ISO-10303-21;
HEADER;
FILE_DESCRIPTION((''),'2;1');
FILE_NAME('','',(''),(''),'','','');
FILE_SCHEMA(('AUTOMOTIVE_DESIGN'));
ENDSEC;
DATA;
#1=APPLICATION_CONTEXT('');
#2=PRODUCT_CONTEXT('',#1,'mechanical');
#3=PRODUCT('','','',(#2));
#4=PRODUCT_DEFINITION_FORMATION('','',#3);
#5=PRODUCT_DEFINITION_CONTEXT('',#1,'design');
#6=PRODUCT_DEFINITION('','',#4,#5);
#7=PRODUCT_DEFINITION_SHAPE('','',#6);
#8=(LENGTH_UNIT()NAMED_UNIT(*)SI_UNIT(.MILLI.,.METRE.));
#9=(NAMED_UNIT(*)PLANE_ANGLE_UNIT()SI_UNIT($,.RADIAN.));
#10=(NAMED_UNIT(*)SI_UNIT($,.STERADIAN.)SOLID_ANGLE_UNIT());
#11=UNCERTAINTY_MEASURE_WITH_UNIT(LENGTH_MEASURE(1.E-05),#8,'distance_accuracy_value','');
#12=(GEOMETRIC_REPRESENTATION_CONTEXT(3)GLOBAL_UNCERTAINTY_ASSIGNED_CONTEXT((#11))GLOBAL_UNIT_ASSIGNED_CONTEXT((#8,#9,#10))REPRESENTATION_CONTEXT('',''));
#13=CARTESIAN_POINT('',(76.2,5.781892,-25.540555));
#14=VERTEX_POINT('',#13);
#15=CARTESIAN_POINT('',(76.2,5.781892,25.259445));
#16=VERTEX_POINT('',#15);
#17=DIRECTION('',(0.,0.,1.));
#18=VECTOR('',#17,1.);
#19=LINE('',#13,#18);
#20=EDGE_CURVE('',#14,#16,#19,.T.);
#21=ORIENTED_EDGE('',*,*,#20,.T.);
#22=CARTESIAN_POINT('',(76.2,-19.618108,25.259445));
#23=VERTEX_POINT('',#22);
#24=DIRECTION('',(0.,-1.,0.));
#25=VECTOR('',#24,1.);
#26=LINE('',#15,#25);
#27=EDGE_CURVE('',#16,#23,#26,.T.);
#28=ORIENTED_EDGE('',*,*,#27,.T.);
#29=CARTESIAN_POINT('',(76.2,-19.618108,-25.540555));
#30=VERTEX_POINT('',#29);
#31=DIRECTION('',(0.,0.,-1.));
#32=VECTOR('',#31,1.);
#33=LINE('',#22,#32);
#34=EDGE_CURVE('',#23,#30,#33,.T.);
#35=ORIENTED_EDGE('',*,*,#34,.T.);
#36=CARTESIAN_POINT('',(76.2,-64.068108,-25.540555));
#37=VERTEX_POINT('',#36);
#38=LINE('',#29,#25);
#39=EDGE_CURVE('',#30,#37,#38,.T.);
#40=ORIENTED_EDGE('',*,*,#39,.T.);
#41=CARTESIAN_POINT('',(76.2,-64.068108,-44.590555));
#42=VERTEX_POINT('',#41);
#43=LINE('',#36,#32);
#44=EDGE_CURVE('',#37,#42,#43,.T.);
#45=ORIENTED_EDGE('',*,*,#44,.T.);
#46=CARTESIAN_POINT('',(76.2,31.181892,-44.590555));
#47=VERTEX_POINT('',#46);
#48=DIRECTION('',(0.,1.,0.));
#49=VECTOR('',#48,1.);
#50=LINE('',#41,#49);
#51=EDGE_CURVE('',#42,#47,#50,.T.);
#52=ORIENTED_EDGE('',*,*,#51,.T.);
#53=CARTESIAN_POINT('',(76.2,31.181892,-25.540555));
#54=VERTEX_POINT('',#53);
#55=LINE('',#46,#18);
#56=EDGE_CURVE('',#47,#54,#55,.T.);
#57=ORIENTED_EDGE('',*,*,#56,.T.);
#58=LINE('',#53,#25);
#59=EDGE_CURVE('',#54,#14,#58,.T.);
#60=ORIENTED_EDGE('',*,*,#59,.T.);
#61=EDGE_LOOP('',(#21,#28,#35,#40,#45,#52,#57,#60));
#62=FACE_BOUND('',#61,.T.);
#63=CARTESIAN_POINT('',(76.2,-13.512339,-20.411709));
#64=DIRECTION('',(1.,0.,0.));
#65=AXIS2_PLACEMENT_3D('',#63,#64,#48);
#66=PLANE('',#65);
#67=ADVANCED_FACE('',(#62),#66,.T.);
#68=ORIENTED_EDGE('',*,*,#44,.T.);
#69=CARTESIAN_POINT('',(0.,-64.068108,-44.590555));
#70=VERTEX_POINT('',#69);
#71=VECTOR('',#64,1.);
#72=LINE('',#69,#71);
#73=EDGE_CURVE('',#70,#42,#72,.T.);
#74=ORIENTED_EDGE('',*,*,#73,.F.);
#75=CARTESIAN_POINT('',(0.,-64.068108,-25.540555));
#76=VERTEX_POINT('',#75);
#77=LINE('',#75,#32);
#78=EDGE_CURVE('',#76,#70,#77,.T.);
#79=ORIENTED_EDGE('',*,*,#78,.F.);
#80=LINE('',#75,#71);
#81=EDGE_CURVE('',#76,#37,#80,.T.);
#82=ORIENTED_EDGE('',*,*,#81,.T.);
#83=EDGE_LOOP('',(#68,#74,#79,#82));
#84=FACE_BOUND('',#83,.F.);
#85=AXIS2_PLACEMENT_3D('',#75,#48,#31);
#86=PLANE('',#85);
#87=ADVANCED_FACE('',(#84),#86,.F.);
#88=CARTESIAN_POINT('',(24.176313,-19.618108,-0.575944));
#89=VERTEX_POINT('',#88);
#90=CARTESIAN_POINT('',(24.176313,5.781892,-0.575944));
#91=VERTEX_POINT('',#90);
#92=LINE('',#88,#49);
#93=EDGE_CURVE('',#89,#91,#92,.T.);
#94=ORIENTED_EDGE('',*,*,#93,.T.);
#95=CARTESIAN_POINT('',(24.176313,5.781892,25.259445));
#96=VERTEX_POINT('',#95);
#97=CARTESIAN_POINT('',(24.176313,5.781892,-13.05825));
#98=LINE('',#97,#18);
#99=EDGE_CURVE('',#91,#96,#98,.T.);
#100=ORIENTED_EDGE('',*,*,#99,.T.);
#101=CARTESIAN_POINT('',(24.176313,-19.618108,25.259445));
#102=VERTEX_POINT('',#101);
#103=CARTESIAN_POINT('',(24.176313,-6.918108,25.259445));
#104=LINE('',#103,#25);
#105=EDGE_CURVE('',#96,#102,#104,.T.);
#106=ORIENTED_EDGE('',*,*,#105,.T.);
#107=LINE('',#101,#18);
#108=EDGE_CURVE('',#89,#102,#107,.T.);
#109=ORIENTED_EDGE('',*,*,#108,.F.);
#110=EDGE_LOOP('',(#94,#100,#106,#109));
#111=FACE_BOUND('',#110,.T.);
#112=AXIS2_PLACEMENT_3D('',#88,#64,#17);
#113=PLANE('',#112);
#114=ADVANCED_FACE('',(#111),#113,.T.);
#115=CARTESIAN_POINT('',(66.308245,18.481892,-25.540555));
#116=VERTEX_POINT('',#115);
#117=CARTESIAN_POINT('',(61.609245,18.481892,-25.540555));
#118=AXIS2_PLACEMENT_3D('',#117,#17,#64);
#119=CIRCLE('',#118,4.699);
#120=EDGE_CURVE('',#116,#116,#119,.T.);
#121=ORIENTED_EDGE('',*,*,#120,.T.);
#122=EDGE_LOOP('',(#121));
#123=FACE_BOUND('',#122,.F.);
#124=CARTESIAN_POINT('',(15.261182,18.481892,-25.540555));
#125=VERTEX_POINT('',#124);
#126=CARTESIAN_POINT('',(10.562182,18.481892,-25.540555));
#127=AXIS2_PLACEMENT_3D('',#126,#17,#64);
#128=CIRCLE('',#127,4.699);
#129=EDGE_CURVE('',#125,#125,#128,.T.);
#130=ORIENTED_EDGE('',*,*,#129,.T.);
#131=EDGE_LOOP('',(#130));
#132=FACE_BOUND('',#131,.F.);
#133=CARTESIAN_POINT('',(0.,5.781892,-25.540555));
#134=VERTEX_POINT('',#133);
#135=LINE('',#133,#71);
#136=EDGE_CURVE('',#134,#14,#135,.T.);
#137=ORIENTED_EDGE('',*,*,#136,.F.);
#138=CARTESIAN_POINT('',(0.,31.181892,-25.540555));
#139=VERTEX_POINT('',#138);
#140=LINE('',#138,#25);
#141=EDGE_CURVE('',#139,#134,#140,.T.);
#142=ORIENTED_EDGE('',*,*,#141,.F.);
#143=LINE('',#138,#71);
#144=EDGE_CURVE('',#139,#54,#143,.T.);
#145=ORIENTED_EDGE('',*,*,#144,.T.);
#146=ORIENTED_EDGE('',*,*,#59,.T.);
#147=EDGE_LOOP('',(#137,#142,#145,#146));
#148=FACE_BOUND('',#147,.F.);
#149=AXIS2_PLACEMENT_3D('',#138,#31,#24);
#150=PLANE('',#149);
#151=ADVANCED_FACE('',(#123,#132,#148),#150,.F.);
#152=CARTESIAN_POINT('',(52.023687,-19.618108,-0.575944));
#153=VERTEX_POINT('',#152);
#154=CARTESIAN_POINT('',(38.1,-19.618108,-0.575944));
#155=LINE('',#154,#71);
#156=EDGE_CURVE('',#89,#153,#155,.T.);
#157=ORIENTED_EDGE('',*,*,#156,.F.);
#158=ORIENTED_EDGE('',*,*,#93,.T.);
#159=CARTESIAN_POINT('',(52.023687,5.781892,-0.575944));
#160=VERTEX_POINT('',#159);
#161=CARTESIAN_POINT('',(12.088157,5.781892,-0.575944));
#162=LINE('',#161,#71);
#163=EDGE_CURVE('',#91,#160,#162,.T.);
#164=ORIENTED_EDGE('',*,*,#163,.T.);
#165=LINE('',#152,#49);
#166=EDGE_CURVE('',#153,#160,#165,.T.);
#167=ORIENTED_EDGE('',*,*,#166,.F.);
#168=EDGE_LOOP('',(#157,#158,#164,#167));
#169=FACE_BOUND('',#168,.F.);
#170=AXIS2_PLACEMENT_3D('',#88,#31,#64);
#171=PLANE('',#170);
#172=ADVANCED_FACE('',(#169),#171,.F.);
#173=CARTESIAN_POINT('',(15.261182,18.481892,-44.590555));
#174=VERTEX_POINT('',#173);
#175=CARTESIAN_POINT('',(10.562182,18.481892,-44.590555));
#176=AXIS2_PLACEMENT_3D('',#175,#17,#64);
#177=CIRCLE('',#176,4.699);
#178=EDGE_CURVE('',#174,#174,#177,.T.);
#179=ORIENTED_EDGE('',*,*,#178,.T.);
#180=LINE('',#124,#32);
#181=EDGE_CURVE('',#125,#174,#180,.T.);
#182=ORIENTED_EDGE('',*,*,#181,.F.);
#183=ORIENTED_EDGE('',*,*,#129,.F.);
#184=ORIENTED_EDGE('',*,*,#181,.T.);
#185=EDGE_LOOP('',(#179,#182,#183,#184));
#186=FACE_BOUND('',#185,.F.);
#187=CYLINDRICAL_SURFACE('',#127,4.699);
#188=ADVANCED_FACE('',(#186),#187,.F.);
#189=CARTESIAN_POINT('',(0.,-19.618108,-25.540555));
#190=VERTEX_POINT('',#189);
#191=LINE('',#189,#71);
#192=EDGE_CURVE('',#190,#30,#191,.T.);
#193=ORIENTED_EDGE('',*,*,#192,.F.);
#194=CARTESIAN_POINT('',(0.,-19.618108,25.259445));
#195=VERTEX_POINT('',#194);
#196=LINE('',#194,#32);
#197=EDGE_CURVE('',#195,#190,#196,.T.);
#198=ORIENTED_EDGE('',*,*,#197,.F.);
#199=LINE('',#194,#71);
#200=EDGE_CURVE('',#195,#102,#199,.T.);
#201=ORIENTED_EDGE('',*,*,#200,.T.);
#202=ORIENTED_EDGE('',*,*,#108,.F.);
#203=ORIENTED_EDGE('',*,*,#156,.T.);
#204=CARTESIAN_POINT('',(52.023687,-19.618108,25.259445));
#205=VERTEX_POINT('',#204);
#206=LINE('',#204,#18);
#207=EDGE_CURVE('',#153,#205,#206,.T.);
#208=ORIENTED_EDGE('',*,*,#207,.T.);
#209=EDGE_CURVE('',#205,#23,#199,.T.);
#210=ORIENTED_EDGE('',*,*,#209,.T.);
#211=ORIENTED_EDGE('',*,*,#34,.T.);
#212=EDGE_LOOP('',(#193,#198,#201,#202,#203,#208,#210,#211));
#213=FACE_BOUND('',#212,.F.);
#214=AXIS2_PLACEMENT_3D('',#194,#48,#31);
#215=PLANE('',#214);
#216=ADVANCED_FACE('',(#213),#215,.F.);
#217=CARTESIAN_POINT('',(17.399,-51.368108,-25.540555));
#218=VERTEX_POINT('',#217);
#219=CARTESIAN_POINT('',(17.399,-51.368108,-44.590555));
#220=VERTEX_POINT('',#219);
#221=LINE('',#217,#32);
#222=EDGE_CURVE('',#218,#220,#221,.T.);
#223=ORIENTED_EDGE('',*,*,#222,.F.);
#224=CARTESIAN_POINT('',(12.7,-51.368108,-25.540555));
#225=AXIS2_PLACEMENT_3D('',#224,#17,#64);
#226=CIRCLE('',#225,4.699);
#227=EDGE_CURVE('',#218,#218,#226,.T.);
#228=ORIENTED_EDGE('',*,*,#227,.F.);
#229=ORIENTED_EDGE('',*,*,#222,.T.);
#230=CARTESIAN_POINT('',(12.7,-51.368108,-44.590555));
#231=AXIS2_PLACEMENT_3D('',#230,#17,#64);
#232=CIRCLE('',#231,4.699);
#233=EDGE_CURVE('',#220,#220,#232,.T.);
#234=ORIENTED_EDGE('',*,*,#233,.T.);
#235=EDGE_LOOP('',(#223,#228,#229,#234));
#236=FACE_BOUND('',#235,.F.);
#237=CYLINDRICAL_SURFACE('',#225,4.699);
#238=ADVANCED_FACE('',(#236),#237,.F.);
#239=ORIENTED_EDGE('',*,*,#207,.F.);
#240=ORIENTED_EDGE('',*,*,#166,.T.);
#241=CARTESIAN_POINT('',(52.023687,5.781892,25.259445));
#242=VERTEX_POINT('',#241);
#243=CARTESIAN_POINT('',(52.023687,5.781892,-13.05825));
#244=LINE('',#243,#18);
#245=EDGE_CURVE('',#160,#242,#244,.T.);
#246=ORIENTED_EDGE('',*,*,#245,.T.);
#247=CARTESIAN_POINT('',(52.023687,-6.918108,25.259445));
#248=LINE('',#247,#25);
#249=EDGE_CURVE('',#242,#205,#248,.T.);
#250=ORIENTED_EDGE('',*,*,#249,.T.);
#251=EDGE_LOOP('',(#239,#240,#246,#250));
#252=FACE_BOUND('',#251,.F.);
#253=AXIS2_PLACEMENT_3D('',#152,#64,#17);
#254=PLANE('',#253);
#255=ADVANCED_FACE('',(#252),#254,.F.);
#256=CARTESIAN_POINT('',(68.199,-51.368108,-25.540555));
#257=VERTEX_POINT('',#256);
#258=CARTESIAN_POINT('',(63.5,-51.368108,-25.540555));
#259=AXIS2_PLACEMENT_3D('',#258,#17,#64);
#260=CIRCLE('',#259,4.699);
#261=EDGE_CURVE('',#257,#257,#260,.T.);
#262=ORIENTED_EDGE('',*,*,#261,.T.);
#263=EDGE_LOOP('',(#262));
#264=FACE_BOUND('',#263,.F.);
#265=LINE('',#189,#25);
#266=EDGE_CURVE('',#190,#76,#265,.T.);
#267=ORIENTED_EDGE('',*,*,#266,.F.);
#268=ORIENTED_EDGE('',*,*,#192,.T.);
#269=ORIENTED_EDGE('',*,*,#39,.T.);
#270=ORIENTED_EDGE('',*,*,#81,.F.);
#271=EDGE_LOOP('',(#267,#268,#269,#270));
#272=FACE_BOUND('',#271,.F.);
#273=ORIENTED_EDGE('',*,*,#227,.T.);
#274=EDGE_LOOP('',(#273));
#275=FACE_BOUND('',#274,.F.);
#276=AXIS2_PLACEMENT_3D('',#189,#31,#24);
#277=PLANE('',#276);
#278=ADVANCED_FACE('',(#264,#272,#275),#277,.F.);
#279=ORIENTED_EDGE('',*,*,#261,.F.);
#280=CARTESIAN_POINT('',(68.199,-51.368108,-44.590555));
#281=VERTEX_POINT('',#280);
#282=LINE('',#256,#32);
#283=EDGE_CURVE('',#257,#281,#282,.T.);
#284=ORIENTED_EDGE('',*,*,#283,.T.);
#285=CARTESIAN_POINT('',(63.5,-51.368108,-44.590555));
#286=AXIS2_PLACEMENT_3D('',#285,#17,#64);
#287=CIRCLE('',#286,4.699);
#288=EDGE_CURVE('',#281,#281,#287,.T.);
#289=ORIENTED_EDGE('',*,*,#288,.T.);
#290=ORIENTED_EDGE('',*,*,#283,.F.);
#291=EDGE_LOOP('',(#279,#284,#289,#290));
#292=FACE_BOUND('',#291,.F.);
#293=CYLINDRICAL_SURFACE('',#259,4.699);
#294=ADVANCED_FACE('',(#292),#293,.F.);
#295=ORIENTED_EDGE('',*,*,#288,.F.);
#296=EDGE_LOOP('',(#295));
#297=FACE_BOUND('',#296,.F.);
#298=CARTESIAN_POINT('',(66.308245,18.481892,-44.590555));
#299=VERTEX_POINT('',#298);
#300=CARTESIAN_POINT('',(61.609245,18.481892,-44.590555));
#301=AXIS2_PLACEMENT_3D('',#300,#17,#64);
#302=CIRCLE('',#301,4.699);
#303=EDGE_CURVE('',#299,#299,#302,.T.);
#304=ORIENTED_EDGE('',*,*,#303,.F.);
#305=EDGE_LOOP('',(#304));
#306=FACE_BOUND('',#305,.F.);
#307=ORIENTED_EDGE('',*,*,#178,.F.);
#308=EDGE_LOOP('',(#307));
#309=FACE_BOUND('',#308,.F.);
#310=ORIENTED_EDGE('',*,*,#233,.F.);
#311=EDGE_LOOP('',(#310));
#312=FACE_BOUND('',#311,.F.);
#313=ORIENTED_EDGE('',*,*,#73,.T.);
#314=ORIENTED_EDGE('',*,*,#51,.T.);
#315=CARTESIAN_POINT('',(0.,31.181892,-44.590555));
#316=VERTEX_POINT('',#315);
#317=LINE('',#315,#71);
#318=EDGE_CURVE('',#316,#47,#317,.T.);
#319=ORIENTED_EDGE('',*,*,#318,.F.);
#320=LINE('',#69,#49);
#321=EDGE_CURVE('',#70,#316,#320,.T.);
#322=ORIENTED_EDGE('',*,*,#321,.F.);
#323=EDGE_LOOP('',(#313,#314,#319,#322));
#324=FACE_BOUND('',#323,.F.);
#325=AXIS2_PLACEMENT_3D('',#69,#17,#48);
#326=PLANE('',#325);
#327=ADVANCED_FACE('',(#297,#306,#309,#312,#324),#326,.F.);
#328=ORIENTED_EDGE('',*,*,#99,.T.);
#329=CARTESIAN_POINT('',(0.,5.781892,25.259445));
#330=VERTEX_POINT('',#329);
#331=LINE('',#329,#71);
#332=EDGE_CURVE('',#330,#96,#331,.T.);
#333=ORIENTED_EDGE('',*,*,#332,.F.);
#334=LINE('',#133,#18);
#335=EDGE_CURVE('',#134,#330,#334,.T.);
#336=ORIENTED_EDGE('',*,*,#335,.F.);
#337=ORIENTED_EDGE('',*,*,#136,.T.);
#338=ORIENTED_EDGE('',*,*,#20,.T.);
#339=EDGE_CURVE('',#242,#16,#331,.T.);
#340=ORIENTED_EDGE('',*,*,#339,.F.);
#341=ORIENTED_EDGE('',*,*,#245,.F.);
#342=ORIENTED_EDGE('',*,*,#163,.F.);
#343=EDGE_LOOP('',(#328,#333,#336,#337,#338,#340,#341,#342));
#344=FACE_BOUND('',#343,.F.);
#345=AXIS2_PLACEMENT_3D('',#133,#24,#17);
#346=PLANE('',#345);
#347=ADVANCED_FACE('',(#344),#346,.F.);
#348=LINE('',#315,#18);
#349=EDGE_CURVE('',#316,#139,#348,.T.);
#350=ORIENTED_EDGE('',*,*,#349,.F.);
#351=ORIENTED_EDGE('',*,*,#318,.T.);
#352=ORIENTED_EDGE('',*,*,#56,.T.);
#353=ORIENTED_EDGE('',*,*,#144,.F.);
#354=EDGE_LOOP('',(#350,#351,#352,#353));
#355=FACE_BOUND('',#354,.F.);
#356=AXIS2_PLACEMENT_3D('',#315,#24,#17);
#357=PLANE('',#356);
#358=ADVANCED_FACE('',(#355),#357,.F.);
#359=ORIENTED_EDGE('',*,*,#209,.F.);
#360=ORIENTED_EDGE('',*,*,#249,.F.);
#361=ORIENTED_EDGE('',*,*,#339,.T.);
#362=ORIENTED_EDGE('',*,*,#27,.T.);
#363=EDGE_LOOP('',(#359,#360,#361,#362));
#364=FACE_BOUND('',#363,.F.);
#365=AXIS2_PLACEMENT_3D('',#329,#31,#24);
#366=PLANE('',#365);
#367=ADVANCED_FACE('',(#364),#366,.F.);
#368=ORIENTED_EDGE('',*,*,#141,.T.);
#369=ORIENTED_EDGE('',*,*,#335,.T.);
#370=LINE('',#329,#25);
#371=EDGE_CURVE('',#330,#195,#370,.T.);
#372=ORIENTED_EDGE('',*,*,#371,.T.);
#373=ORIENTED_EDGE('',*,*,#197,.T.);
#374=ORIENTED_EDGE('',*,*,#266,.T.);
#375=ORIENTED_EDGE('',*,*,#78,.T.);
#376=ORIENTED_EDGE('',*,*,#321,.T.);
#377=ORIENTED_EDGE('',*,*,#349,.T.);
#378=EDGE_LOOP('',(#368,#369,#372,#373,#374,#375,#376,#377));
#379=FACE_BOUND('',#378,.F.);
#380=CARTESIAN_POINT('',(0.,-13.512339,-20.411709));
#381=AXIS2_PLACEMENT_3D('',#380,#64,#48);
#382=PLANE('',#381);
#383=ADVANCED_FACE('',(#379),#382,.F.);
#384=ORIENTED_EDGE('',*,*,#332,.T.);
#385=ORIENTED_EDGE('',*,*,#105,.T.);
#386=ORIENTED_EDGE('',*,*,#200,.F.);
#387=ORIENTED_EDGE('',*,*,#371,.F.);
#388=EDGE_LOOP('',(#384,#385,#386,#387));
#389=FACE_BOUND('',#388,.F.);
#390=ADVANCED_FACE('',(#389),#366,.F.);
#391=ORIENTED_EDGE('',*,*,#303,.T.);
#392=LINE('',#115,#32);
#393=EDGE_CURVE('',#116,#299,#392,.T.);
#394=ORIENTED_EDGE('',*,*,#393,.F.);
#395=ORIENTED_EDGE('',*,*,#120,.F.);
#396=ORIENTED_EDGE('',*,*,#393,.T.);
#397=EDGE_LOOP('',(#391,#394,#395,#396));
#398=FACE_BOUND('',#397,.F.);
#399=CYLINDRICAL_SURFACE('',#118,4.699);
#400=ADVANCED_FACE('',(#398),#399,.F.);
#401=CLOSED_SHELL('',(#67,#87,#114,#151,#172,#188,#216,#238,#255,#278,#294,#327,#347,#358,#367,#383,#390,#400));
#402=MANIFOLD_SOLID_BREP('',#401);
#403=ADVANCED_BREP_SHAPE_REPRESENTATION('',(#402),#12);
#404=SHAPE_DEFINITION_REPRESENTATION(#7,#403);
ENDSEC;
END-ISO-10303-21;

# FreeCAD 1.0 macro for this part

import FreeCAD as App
import Part
import Sketcher
from FreeCAD import Vector
Q = App.Units.Quantity


def add_polygon(sketch, points):
    """Adds a closed chain of lines whose ends are joined by coincident constraints."""
    first, n = sketch.GeometryCount, len(points)
    for a, b in zip(points, points[1:] + points[:1]):
        sketch.addGeometry(Part.LineSegment(App.Vector(*a, 0), App.Vector(*b, 0)), False)
    for i in range(n):
        sketch.addConstraint(Sketcher.Constraint("Coincident", first + i, 2, first + (i + 1) % n, 1))

doc = App.newDocument("Part")
body = doc.addObject("PartDesign::Body", "Body")

# Sketch on YZ plane
sketch1 = body.newObject("Sketcher::SketchObject", "Sketch")
sketch1.AttachmentSupport = (doc.getObject("YZ_Plane"), [""])
sketch1.MapMode = "FlatFace"
add_polygon(sketch1, [(-19.618108, -25.540555), (-64.068108, -25.540555), (-64.068108, -44.590555), (31.181892, -44.590555), (31.181892, -25.540555), (5.781892, -25.540555), (5.781892, 25.259445), (-19.618108, 25.259445)])  # lines 0-7
sketch1.addConstraint([
    Sketcher.Constraint("Horizontal", 0),
    Sketcher.Constraint("Vertical", 1),
    Sketcher.Constraint("Horizontal", 2),
    Sketcher.Constraint("Vertical", 3),
    Sketcher.Constraint("Horizontal", 4),
    Sketcher.Constraint("Vertical", 5),
    Sketcher.Constraint("Horizontal", 6),
    Sketcher.Constraint("Vertical", 7),
    Sketcher.Constraint("Horizontal", 0, 2, 3, 2),
    Sketcher.Constraint("Equal", 4, 6),
    Sketcher.Constraint("DistanceX", 4, 2, 4, 1, Q("1 in")),
    Sketcher.Constraint("DistanceY", 5, 1, 5, 2, Q("2 in")),
    Sketcher.Constraint("DistanceX", 0, 2, 0, 1, Q("1.75 in")),
    Sketcher.Constraint("DistanceY", 1, 2, 1, 1, Q("0.75 in")),
    Sketcher.Constraint("DistanceX", 0, 2, -1, 1, 64.068108),
    Sketcher.Constraint("DistanceY", 0, 2, -1, 1, 25.540555),
])
pad1 = body.newObject("PartDesign::Pad", "Pad")
pad1.Profile = sketch1
pad1.Length = Q("3 in")

# Sketch on XZ plane
sketch2 = body.newObject("Sketcher::SketchObject", "Sketch001")
sketch2.AttachmentSupport = (doc.getObject("XZ_Plane"), [""])
sketch2.MapMode = "FlatFace"
sketch2.AttachmentOffset = App.Placement(Vector(0, 0, 19.618108), App.Rotation())
add_polygon(sketch2, [(24.176313, 51.094834), (24.176313, -0.575944), (52.023687, -0.575944), (52.023687, 51.094834)])  # lines 0-3
sketch2.addConstraint([
    Sketcher.Constraint("Vertical", 0),
    Sketcher.Constraint("Horizontal", 1),
    Sketcher.Constraint("Vertical", 2),
    Sketcher.Constraint("Horizontal", 3),
    Sketcher.Constraint("DistanceY", 0, 2, 0, 1, 51.670779),
    Sketcher.Constraint("DistanceX", 1, 1, 1, 2, 27.847374),
    Sketcher.Constraint("DistanceX", -1, 1, 0, 2, 24.176313),
    Sketcher.Constraint("DistanceY", 0, 2, -1, 1, 0.575944),
])
pocket1 = body.newObject("PartDesign::Pocket", "Pocket")
pocket1.Profile = sketch2
pocket1.Type = "ThroughAll"

# Sketch on XY plane
sketch3 = body.newObject("Sketcher::SketchObject", "Sketch002")
sketch3.AttachmentSupport = (doc.getObject("XY_Plane"), [""])
sketch3.MapMode = "FlatFace"
sketch3.AttachmentOffset = App.Placement(Vector(0, 0, -25.540555), App.Rotation())
sketch3.addGeometry([
    Part.Circle(Vector(12.7, -51.368108, 0), Vector(0, 0, 1), 4.699),
    Part.Circle(Vector(63.5, -51.368108, 0), Vector(0, 0, 1), 4.699),
    Part.Circle(Vector(10.562182, 18.481892, 0), Vector(0, 0, 1), 4.699),
    Part.Circle(Vector(61.609245, 18.481892, 0), Vector(0, 0, 1), 4.699),
], False)
sketch3.addConstraint([
    Sketcher.Constraint("Equal", 0, 1),
    Sketcher.Constraint("Equal", 1, 2),
    Sketcher.Constraint("Equal", 2, 3),
    Sketcher.Constraint("Horizontal", 0, 3, 1, 3),
    Sketcher.Constraint("Horizontal", 2, 3, 3, 3),
    Sketcher.Constraint("Diameter", 0, Q("0.37 in")),
    Sketcher.Constraint("DistanceX", 0, 3, 1, 3, Q("2 in")),
    Sketcher.Constraint("DistanceX", -1, 1, 0, 3, Q("0.5 in")),
    Sketcher.Constraint("DistanceY", 0, 3, 2, 3, Q("2.75 in")),
    Sketcher.Constraint("DistanceY", -1, 1, 2, 3, 18.481892),
    Sketcher.Constraint("DistanceX", -1, 1, 2, 3, 10.562182),
    Sketcher.Constraint("DistanceX", -1, 1, 3, 3, 61.609245),
])
pocket2 = body.newObject("PartDesign::Pocket", "Pocket001")
pocket2.Profile = sketch3
pocket2.Length = Q("3 in")
pocket2.Reversed = True

# Sketch on XY plane
sketch4 = body.newObject("Sketcher::SketchObject", "Sketch003")
sketch4.AttachmentSupport = (doc.getObject("XY_Plane"), [""])
sketch4.MapMode = "FlatFace"
sketch4.AttachmentOffset = App.Placement(Vector(0, 0, -25.540555), App.Rotation())
sketch4.addGeometry([
    Part.Circle(Vector(12.7, -51.368108, 0), Vector(0, 0, 1), 4.699),
    Part.Circle(Vector(63.5, -51.368108, 0), Vector(0, 0, 1), 4.699),
    Part.Circle(Vector(10.562182, 18.481892, 0), Vector(0, 0, 1), 4.699),
    Part.Circle(Vector(61.609245, 18.481892, 0), Vector(0, 0, 1), 4.699),
], False)
sketch4.addConstraint([
    Sketcher.Constraint("Equal", 0, 1),
    Sketcher.Constraint("Equal", 1, 2),
    Sketcher.Constraint("Equal", 2, 3),
    Sketcher.Constraint("Horizontal", 0, 3, 1, 3),
    Sketcher.Constraint("Horizontal", 2, 3, 3, 3),
    Sketcher.Constraint("Diameter", 0, Q("0.37 in")),
    Sketcher.Constraint("DistanceX", 0, 3, 1, 3, Q("2 in")),
    Sketcher.Constraint("DistanceX", -1, 1, 0, 3, Q("0.5 in")),
    Sketcher.Constraint("DistanceY", 0, 3, 2, 3, Q("2.75 in")),
    Sketcher.Constraint("DistanceY", -1, 1, 2, 3, 18.481892),
    Sketcher.Constraint("DistanceX", -1, 1, 2, 3, 10.562182),
    Sketcher.Constraint("DistanceX", -1, 1, 3, 3, 61.609245),
])
pocket3 = body.newObject("PartDesign::Pocket", "Pocket002")
pocket3.Profile = sketch4
pocket3.Type = "ThroughAll"

doc.recompute()
